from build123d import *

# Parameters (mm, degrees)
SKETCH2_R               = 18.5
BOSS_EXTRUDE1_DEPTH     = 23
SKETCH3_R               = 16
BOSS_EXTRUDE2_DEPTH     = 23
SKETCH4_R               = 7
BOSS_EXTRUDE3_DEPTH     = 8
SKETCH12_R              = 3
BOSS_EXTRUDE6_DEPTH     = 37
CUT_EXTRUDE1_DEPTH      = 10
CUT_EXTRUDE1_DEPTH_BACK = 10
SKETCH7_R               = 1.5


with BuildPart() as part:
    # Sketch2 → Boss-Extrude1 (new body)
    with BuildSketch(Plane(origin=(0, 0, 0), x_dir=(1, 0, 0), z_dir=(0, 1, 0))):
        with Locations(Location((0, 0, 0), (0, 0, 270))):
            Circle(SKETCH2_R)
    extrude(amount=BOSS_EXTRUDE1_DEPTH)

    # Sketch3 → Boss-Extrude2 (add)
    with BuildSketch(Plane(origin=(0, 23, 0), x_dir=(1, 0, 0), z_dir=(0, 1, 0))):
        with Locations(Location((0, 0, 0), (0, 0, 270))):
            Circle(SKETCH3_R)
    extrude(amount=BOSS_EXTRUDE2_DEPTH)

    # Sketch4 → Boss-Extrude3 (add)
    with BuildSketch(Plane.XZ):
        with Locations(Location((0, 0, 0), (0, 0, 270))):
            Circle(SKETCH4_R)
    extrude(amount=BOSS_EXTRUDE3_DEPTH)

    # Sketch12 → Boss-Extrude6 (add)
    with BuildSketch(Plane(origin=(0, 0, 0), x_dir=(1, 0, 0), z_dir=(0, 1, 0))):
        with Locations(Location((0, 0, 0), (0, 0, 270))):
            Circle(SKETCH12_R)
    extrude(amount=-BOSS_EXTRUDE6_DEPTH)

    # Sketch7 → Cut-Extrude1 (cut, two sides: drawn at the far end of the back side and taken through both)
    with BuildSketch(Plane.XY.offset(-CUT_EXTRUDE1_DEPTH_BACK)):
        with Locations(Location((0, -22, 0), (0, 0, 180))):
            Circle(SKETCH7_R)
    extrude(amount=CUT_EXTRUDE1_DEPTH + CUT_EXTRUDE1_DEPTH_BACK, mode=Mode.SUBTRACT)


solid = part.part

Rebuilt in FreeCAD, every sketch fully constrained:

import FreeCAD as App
import Part
import Sketcher

V = App.Vector
Q = App.Units.Quantity

doc = App.newDocument("Part")
body = doc.addObject("PartDesign::Body", "Body")

# Sketch on XZ plane
sketch1 = body.newObject("Sketcher::SketchObject", "Sketch")
sketch1.AttachmentSupport = (doc.getObject("XZ_Plane"), [""])
sketch1.MapMode = "FlatFace"
sketch1.addGeometry(Part.Circle(V(0, 0, 0), V(0, 0, 1), 18), False)
sketch1.addConstraint(Sketcher.Constraint("Coincident", 0, 3, -1, 1))
sketch1.addConstraint(Sketcher.Constraint("Diameter", 0, Q("37 mm")))
pad1 = body.newObject("PartDesign::Pad", "Pad")
pad1.Profile = sketch1
pad1.Length = 23
pad1.Reversed = True

# Sketch on XZ plane
sketch2 = body.newObject("Sketcher::SketchObject", "Sketch001")
sketch2.AttachmentSupport = (doc.getObject("XZ_Plane"), [""])
sketch2.MapMode = "FlatFace"
sketch2.AttachmentOffset = App.Placement(V(0, 0, -23), App.Rotation())
sketch2.addGeometry(Part.Circle(V(0, 0, 0), V(0, 0, 1), 16), False)
sketch2.addConstraint(Sketcher.Constraint("Coincident", 0, 3, -1, 1))
sketch2.addConstraint(Sketcher.Constraint("Diameter", 0, Q("32 mm")))
pad2 = body.newObject("PartDesign::Pad", "Pad001")
pad2.Profile = sketch2
pad2.Length = 23
pad2.Reversed = True

# Sketch on XZ plane
sketch3 = body.newObject("Sketcher::SketchObject", "Sketch002")
sketch3.AttachmentSupport = (doc.getObject("XZ_Plane"), [""])
sketch3.MapMode = "FlatFace"
sketch3.addGeometry(Part.Circle(V(0, 0, 0), V(0, 0, 1), 7), False)
sketch3.addConstraint(Sketcher.Constraint("Coincident", 0, 3, -1, 1))
sketch3.addConstraint(Sketcher.Constraint("Diameter", 0, Q("14 mm")))
pad3 = body.newObject("PartDesign::Pad", "Pad002")
pad3.Profile = sketch3
pad3.Length = 8

# Sketch on XZ plane
sketch4 = body.newObject("Sketcher::SketchObject", "Sketch003")
sketch4.AttachmentSupport = (doc.getObject("XZ_Plane"), [""])
sketch4.MapMode = "FlatFace"
sketch4.addGeometry(Part.Circle(V(0, 0, 0), V(0, 0, 1), 3), False)
sketch4.addConstraint(Sketcher.Constraint("Coincident", 0, 3, -1, 1))
sketch4.addConstraint(Sketcher.Constraint("Diameter", 0, Q("6 mm")))
pad4 = body.newObject("PartDesign::Pad", "Pad003")
pad4.Profile = sketch4
pad4.Length = 37

# Sketch on XY plane
sketch5 = body.newObject("Sketcher::SketchObject", "Sketch004")
sketch5.AttachmentSupport = (doc.getObject("XY_Plane"), [""])
sketch5.MapMode = "FlatFace"
sketch5.addGeometry(Part.Circle(V(0, -22, 0), V(0, 0, 1), 1.5), False)
sketch5.addConstraint(Sketcher.Constraint("PointOnObject", 0, 3, -2))
sketch5.addConstraint(Sketcher.Constraint("Diameter", 0, Q("3 mm")))
sketch5.addConstraint(Sketcher.Constraint("DistanceY", 0, 3, -1, 1, Q("22 mm")))
pocket1 = body.newObject("PartDesign::Pocket", "Pocket")
pocket1.Profile = sketch5
pocket1.Type = "ThroughAll"
pocket1.Midplane = True

doc.recompute()
